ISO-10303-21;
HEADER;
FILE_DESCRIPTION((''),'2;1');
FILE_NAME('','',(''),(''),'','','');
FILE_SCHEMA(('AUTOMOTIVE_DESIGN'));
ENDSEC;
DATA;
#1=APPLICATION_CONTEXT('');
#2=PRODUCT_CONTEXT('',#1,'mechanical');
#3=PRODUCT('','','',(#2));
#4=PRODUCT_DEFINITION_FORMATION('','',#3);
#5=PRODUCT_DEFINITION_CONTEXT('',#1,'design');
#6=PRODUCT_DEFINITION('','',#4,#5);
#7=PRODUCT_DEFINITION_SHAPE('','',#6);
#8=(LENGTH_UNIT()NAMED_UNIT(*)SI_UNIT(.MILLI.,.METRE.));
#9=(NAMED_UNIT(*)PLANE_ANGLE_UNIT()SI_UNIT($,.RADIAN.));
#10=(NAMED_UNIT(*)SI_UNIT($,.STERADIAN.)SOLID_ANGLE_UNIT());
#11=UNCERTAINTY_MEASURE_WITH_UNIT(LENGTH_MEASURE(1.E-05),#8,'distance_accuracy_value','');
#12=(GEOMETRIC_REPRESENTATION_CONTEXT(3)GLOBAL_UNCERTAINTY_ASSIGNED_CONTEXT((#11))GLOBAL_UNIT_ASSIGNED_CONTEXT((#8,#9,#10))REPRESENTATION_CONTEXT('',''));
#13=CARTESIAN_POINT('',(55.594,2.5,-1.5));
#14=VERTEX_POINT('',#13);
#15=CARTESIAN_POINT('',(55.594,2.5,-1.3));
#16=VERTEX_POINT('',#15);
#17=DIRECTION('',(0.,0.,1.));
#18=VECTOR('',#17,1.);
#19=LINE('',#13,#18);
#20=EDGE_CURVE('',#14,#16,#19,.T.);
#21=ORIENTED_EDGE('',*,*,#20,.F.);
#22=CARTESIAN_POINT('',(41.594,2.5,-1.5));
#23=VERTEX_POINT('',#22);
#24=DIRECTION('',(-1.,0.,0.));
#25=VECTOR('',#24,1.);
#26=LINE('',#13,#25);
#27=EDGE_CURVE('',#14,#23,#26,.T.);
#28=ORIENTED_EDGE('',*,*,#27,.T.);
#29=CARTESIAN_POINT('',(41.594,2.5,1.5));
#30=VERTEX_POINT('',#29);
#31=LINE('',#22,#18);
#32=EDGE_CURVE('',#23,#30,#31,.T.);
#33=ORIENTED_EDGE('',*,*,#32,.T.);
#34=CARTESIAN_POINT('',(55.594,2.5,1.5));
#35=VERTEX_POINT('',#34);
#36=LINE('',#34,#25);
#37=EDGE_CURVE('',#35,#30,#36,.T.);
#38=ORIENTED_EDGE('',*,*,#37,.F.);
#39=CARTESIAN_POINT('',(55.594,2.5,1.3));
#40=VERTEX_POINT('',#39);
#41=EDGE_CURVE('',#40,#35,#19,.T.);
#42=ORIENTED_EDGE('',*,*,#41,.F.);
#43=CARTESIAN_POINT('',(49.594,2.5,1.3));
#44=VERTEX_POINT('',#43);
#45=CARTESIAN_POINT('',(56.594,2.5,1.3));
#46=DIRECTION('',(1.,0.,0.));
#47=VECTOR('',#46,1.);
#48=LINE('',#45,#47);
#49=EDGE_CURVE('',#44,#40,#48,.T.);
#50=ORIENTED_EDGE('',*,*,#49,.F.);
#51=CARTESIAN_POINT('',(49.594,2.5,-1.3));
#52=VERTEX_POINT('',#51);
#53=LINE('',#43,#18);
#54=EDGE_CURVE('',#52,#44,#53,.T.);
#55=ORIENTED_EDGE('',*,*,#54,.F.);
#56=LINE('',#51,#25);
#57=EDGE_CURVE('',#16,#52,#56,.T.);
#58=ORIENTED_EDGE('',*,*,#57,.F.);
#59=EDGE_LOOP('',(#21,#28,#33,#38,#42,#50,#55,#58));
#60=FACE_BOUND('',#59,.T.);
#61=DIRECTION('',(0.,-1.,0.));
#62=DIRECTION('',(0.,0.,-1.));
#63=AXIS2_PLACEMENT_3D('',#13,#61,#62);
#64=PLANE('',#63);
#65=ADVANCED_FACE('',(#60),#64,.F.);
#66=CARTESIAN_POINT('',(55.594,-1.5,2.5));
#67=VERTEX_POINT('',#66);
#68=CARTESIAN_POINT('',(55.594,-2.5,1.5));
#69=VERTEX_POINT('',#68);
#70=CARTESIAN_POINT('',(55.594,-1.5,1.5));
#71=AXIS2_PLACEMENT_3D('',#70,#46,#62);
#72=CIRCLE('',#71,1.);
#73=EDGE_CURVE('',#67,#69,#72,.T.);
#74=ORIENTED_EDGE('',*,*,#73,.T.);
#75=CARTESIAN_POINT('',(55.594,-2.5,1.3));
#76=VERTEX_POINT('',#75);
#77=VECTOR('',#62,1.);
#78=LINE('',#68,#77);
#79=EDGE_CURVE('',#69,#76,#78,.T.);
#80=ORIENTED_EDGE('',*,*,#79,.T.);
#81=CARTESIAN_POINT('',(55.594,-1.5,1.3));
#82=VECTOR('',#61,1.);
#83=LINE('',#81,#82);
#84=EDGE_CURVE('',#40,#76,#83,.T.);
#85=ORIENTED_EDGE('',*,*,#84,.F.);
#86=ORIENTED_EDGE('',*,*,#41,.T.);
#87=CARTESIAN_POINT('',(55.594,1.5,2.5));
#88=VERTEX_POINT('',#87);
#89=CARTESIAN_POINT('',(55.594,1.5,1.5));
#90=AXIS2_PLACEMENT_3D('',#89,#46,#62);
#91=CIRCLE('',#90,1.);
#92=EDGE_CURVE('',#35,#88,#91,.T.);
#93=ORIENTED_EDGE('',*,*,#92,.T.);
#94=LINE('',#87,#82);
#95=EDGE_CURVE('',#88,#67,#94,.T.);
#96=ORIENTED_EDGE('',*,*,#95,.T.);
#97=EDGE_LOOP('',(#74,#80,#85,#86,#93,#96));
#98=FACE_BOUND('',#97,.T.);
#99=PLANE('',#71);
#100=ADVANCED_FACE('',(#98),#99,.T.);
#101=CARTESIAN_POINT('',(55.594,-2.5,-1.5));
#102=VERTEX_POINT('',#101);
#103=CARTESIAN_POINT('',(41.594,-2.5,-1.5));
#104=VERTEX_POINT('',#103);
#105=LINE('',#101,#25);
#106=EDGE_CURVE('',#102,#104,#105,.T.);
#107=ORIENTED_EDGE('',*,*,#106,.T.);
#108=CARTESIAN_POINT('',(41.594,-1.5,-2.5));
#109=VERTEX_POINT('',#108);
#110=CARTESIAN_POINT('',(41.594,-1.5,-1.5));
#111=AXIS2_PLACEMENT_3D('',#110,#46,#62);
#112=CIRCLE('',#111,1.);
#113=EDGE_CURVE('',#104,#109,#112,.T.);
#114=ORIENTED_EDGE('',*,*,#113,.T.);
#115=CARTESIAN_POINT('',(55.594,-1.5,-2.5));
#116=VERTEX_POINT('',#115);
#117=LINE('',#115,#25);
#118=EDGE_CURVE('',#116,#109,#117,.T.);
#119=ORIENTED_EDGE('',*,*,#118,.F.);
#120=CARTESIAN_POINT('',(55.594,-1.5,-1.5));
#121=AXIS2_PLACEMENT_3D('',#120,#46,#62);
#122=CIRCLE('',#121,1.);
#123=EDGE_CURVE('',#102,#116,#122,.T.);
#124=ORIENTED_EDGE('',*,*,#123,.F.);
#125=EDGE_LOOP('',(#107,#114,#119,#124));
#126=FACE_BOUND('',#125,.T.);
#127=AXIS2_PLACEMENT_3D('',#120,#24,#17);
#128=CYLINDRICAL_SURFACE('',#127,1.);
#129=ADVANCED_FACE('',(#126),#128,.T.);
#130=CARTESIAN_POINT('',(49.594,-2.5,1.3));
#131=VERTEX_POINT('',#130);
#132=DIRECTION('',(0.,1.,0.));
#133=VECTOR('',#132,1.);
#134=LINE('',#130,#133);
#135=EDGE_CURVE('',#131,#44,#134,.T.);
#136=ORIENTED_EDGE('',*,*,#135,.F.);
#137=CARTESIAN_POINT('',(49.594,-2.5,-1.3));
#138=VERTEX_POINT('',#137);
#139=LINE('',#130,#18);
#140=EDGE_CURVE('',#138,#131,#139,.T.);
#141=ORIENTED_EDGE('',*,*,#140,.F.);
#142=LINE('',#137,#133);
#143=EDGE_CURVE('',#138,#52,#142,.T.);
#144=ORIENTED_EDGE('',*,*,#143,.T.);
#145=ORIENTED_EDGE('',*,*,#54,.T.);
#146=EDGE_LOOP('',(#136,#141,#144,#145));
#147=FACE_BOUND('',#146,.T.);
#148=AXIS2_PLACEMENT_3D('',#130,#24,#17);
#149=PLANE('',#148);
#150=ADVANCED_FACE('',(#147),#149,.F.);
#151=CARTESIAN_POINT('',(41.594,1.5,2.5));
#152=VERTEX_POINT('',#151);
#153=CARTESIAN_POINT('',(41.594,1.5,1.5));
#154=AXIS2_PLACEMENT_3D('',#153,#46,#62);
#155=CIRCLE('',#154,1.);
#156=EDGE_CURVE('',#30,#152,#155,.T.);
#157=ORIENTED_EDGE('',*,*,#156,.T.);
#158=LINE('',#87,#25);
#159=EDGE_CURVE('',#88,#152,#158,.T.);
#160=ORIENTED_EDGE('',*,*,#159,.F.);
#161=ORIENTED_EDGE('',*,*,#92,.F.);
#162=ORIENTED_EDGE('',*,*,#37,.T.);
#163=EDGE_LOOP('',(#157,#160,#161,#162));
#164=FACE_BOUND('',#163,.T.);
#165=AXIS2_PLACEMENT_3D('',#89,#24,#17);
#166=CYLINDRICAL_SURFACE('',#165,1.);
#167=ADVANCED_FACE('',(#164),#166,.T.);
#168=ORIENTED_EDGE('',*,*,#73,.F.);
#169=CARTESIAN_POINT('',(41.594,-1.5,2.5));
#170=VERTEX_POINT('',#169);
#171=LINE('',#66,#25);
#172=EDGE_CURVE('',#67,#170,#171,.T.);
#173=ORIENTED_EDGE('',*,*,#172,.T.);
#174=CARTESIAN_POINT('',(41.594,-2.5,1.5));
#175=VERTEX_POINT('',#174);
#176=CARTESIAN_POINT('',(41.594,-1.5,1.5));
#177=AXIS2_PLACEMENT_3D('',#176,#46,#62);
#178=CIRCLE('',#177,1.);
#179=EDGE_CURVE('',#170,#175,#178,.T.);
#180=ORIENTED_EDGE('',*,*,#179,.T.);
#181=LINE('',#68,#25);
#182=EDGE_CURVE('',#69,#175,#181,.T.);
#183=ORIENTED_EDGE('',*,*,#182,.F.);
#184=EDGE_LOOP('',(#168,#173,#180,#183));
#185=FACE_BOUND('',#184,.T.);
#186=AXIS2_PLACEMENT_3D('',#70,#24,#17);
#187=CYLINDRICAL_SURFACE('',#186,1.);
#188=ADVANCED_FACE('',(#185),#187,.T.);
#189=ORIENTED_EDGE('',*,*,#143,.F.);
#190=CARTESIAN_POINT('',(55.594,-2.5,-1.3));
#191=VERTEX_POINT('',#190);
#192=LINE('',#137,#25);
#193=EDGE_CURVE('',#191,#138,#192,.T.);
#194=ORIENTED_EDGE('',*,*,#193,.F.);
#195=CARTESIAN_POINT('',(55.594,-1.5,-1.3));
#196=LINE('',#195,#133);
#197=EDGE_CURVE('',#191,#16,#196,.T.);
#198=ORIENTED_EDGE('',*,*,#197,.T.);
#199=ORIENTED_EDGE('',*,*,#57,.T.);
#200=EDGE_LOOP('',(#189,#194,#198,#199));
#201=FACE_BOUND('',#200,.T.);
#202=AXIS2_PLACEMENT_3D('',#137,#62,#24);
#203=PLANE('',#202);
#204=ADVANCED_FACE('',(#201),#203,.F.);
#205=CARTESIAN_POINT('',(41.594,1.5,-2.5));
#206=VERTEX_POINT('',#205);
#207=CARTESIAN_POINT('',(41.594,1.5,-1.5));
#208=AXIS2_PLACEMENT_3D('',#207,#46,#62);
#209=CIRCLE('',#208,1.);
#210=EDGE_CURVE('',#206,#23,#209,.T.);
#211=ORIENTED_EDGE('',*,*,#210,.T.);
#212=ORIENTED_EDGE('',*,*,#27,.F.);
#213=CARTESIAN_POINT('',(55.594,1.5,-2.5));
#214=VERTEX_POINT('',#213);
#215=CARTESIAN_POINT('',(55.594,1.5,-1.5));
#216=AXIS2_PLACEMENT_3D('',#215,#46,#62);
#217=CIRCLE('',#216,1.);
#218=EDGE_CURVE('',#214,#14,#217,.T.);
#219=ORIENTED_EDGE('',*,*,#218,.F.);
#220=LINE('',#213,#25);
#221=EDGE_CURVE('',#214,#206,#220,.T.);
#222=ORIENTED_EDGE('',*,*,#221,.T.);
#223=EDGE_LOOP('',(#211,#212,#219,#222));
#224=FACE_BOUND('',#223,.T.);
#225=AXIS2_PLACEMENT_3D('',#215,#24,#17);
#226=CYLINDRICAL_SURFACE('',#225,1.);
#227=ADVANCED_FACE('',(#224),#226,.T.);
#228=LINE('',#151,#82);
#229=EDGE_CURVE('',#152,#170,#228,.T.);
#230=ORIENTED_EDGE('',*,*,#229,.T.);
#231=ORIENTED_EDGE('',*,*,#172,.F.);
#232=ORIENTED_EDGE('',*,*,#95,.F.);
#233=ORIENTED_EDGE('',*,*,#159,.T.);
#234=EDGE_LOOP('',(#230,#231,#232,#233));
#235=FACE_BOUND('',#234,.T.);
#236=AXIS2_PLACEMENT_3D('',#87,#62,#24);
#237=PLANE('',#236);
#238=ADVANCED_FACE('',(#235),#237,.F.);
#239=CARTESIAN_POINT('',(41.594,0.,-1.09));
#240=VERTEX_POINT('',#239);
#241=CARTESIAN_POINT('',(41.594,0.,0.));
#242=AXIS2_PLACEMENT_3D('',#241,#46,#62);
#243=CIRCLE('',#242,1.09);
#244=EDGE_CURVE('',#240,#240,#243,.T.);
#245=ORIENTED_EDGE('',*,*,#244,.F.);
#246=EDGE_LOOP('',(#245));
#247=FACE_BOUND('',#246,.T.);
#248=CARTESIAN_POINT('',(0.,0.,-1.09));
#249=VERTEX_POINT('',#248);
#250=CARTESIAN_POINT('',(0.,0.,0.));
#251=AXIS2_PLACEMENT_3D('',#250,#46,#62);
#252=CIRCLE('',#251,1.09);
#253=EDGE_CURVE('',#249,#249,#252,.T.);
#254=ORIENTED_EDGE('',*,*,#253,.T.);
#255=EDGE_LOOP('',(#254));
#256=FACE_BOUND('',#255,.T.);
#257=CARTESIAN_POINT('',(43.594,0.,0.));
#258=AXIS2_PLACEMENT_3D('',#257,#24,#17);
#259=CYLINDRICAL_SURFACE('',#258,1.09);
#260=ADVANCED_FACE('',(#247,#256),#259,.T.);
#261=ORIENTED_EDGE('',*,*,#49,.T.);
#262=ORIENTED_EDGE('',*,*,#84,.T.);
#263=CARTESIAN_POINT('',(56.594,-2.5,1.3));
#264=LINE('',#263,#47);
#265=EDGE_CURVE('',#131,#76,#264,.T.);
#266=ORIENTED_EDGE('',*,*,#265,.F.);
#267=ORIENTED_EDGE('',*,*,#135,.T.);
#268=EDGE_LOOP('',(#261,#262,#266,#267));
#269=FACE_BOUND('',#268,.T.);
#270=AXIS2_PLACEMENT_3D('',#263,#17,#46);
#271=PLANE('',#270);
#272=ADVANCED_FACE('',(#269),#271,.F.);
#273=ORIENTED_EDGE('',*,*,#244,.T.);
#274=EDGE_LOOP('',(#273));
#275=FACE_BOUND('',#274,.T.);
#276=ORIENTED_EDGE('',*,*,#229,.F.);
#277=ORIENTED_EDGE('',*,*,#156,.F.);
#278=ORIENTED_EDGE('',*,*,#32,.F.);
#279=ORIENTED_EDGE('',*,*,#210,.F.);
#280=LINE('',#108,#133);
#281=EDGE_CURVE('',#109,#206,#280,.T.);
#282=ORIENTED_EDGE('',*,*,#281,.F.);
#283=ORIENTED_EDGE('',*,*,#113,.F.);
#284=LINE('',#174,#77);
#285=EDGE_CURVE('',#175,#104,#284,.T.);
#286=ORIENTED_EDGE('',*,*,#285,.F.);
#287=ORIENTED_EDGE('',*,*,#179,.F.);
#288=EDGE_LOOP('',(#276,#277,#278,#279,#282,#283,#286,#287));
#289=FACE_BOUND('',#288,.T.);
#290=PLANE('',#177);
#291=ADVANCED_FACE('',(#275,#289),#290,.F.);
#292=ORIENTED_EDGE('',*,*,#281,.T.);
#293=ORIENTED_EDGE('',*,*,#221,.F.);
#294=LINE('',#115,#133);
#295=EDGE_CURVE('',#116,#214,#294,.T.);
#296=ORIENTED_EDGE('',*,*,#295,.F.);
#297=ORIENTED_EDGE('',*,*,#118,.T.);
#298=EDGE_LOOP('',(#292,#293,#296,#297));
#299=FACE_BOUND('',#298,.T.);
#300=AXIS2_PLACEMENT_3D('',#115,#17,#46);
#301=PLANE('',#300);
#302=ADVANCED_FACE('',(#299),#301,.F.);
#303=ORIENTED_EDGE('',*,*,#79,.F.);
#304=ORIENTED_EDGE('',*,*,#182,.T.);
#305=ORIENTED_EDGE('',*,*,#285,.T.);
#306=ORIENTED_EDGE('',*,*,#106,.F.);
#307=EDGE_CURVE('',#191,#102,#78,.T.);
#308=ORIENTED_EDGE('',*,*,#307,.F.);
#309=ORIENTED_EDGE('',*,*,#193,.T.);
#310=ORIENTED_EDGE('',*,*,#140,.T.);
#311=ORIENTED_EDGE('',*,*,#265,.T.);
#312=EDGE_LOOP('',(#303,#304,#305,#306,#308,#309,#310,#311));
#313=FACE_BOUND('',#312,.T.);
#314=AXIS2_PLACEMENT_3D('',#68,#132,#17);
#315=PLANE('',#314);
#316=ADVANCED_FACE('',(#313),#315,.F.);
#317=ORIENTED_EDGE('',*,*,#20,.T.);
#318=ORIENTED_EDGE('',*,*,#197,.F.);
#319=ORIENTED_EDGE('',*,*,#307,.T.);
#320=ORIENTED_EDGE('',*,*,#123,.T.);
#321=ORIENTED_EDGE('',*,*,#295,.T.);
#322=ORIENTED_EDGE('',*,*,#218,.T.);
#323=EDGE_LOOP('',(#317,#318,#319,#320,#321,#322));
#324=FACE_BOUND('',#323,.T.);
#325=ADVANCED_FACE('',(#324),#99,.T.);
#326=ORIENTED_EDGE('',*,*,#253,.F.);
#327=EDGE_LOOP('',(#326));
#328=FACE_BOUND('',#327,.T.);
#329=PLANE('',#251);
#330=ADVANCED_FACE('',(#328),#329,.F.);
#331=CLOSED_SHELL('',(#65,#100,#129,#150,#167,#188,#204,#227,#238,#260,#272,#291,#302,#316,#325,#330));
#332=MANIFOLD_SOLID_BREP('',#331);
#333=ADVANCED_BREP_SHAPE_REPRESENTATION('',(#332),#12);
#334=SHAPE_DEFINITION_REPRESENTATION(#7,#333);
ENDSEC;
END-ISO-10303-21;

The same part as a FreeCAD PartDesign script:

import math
import FreeCAD as App
import Part
import Sketcher
from FreeCAD import Vector
Q = App.Units.Quantity


def add_polygon(sketch, points):
    """Adds a closed chain of lines whose ends are joined by coincident constraints."""
    first, n = sketch.GeometryCount, len(points)
    for a, b in zip(points, points[1:] + points[:1]):
        sketch.addGeometry(Part.LineSegment(App.Vector(*a, 0), App.Vector(*b, 0)), False)
    for i in range(n):
        sketch.addConstraint(Sketcher.Constraint("Coincident", first + i, 2, first + (i + 1) % n, 1))

doc = App.newDocument("Part")
params = doc.addObject("Spreadsheet::Sheet", "Params")
for row, (alias, value) in enumerate([
    ("sketch1_diameter", "2.18 mm"),
    ("pad1_length", "43.594 mm"),
    ("sketch2_radius", "1 mm"),
    ("sketch2_width", "3 mm"),
    ("pad2_length", "14 mm"),
    ("sketch3_width", "7 mm"),
    ("sketch3_height", "2.6 mm"),
], start=1):
    params.set(f"A{row}", alias)
    params.set(f"B{row}", "=" + value)
    params.setAlias(f"B{row}", alias)

body = doc.addObject("PartDesign::Body", "Body")

# Sketch on YZ plane
sketch1 = doc.addObject("Sketcher::SketchObject", "Sketch")
body.addObject(sketch1)
sketch1.AttachmentSupport = (doc.YZ_Plane, [""])
sketch1.MapMode = "FlatFace"
sketch1.addGeometry(Part.Circle(Vector(0, 0, 0), Vector(0, 0, 1), 1.1), False)
sketch1.addConstraint([
    Sketcher.Constraint("Coincident", 0, 3, -1, 1),
    Sketcher.Constraint("Diameter", 0, Q("2.18 mm")),
])
sketch1.setExpression("Constraints[1]", "Params.sketch1_diameter")
pad1 = doc.addObject("PartDesign::Pad", "Pad")
body.addObject(pad1)
pad1.Profile = sketch1
pad1.setExpression("Length", "Params.pad1_length")

# Sketch on YZ plane
sketch2 = doc.addObject("Sketcher::SketchObject", "Sketch001")
body.addObject(sketch2)
sketch2.AttachmentSupport = (doc.YZ_Plane, [""])
sketch2.MapMode = "FlatFace"
sketch2.AttachmentOffset = App.Placement(Vector(0, 0, 41.594), App.Rotation())
sketch2.addGeometry([
    Part.LineSegment(Vector(-2.5, 1.5, 0), Vector(-2.5, -1.5, 0)),  # 0
    Part.ArcOfCircle(Part.Circle(Vector(-1.5, -1.5, 0), Vector(0, 0, 1), 1), math.radians(-180), math.radians(-90)),  # 1
    Part.LineSegment(Vector(-1.5, -2.5, 0), Vector(1.5, -2.5, 0)),  # 2
    Part.ArcOfCircle(Part.Circle(Vector(1.5, -1.5, 0), Vector(0, 0, 1), 1), math.radians(-90), math.radians(0)),  # 3
    Part.LineSegment(Vector(2.5, -1.5, 0), Vector(2.5, 1.5, 0)),  # 4
    Part.ArcOfCircle(Part.Circle(Vector(1.5, 1.5, 0), Vector(0, 0, 1), 1), math.radians(0), math.radians(90)),  # 5
    Part.LineSegment(Vector(1.5, 2.5, 0), Vector(-1.5, 2.5, 0)),  # 6
    Part.ArcOfCircle(Part.Circle(Vector(-1.5, 1.5, 0), Vector(0, 0, 1), 1), math.radians(90), math.radians(180)),  # 7
], False)
sketch2.addConstraint([
    Sketcher.Constraint("Tangent", 0, 2, 1, 1),
    Sketcher.Constraint("Tangent", 1, 2, 2, 1),
    Sketcher.Constraint("Tangent", 2, 2, 3, 1),
    Sketcher.Constraint("Tangent", 3, 2, 4, 1),
    Sketcher.Constraint("Tangent", 4, 2, 5, 1),
    Sketcher.Constraint("Tangent", 5, 2, 6, 1),
    Sketcher.Constraint("Tangent", 6, 2, 7, 1),
    Sketcher.Constraint("Tangent", 7, 2, 0, 1),
    Sketcher.Constraint("Vertical", 0),
    Sketcher.Constraint("Horizontal", 2),
    Sketcher.Constraint("Vertical", 4),
    Sketcher.Constraint("Horizontal", 6),
    Sketcher.Constraint("Equal", 1, 3),
    Sketcher.Constraint("Equal", 3, 5),
    Sketcher.Constraint("Equal", 5, 7),
    Sketcher.Constraint("Symmetric", 1, 3, 5, 3, -1, 1),
    Sketcher.Constraint("Equal", 6, 0),
    Sketcher.Constraint("Radius", 1, Q("1 mm")),
    Sketcher.Constraint("DistanceX", 2, 1, 2, 2, Q("3 mm")),
])
sketch2.setExpression("Constraints[17]", "Params.sketch2_radius")
sketch2.setExpression("Constraints[18]", "Params.sketch2_width")
pad2 = doc.addObject("PartDesign::Pad", "Pad001")
body.addObject(pad2)
pad2.Profile = sketch2
pad2.setExpression("Length", "Params.pad2_length")

# Sketch on XZ plane
sketch3 = doc.addObject("Sketcher::SketchObject", "Sketch002")
body.addObject(sketch3)
sketch3.AttachmentSupport = (doc.XZ_Plane, [""])
sketch3.MapMode = "FlatFace"
add_polygon(sketch3, [(49.6, -1.3), (49.6, 1.3), (56.6, 1.3), (56.6, -1.3)])  # lines 0-3
sketch3.addConstraint([
    Sketcher.Constraint("Vertical", 0),
    Sketcher.Constraint("Horizontal", 1),
    Sketcher.Constraint("Vertical", 2),
    Sketcher.Constraint("Horizontal", 3),
    Sketcher.Constraint("DistanceX", 1, 1, 1, 2, Q("7 mm")),
    Sketcher.Constraint("DistanceY", 0, 1, 0, 2, Q("2.6 mm")),
    Sketcher.Constraint("DistanceY", -1, 1, 0, 2, Q("1.3 mm")),
    Sketcher.Constraint("DistanceX", -1, 1, 0, 2, Q("49.594 mm")),
])
sketch3.setExpression("Constraints[8]", "Params.sketch3_width")
sketch3.setExpression("Constraints[9]", "Params.sketch3_height")
pocket1 = doc.addObject("PartDesign::Pocket", "Pocket")
body.addObject(pocket1)
pocket1.Profile = sketch3
pocket1.Type = "ThroughAll"
pocket1.Midplane = True

doc.recompute()
